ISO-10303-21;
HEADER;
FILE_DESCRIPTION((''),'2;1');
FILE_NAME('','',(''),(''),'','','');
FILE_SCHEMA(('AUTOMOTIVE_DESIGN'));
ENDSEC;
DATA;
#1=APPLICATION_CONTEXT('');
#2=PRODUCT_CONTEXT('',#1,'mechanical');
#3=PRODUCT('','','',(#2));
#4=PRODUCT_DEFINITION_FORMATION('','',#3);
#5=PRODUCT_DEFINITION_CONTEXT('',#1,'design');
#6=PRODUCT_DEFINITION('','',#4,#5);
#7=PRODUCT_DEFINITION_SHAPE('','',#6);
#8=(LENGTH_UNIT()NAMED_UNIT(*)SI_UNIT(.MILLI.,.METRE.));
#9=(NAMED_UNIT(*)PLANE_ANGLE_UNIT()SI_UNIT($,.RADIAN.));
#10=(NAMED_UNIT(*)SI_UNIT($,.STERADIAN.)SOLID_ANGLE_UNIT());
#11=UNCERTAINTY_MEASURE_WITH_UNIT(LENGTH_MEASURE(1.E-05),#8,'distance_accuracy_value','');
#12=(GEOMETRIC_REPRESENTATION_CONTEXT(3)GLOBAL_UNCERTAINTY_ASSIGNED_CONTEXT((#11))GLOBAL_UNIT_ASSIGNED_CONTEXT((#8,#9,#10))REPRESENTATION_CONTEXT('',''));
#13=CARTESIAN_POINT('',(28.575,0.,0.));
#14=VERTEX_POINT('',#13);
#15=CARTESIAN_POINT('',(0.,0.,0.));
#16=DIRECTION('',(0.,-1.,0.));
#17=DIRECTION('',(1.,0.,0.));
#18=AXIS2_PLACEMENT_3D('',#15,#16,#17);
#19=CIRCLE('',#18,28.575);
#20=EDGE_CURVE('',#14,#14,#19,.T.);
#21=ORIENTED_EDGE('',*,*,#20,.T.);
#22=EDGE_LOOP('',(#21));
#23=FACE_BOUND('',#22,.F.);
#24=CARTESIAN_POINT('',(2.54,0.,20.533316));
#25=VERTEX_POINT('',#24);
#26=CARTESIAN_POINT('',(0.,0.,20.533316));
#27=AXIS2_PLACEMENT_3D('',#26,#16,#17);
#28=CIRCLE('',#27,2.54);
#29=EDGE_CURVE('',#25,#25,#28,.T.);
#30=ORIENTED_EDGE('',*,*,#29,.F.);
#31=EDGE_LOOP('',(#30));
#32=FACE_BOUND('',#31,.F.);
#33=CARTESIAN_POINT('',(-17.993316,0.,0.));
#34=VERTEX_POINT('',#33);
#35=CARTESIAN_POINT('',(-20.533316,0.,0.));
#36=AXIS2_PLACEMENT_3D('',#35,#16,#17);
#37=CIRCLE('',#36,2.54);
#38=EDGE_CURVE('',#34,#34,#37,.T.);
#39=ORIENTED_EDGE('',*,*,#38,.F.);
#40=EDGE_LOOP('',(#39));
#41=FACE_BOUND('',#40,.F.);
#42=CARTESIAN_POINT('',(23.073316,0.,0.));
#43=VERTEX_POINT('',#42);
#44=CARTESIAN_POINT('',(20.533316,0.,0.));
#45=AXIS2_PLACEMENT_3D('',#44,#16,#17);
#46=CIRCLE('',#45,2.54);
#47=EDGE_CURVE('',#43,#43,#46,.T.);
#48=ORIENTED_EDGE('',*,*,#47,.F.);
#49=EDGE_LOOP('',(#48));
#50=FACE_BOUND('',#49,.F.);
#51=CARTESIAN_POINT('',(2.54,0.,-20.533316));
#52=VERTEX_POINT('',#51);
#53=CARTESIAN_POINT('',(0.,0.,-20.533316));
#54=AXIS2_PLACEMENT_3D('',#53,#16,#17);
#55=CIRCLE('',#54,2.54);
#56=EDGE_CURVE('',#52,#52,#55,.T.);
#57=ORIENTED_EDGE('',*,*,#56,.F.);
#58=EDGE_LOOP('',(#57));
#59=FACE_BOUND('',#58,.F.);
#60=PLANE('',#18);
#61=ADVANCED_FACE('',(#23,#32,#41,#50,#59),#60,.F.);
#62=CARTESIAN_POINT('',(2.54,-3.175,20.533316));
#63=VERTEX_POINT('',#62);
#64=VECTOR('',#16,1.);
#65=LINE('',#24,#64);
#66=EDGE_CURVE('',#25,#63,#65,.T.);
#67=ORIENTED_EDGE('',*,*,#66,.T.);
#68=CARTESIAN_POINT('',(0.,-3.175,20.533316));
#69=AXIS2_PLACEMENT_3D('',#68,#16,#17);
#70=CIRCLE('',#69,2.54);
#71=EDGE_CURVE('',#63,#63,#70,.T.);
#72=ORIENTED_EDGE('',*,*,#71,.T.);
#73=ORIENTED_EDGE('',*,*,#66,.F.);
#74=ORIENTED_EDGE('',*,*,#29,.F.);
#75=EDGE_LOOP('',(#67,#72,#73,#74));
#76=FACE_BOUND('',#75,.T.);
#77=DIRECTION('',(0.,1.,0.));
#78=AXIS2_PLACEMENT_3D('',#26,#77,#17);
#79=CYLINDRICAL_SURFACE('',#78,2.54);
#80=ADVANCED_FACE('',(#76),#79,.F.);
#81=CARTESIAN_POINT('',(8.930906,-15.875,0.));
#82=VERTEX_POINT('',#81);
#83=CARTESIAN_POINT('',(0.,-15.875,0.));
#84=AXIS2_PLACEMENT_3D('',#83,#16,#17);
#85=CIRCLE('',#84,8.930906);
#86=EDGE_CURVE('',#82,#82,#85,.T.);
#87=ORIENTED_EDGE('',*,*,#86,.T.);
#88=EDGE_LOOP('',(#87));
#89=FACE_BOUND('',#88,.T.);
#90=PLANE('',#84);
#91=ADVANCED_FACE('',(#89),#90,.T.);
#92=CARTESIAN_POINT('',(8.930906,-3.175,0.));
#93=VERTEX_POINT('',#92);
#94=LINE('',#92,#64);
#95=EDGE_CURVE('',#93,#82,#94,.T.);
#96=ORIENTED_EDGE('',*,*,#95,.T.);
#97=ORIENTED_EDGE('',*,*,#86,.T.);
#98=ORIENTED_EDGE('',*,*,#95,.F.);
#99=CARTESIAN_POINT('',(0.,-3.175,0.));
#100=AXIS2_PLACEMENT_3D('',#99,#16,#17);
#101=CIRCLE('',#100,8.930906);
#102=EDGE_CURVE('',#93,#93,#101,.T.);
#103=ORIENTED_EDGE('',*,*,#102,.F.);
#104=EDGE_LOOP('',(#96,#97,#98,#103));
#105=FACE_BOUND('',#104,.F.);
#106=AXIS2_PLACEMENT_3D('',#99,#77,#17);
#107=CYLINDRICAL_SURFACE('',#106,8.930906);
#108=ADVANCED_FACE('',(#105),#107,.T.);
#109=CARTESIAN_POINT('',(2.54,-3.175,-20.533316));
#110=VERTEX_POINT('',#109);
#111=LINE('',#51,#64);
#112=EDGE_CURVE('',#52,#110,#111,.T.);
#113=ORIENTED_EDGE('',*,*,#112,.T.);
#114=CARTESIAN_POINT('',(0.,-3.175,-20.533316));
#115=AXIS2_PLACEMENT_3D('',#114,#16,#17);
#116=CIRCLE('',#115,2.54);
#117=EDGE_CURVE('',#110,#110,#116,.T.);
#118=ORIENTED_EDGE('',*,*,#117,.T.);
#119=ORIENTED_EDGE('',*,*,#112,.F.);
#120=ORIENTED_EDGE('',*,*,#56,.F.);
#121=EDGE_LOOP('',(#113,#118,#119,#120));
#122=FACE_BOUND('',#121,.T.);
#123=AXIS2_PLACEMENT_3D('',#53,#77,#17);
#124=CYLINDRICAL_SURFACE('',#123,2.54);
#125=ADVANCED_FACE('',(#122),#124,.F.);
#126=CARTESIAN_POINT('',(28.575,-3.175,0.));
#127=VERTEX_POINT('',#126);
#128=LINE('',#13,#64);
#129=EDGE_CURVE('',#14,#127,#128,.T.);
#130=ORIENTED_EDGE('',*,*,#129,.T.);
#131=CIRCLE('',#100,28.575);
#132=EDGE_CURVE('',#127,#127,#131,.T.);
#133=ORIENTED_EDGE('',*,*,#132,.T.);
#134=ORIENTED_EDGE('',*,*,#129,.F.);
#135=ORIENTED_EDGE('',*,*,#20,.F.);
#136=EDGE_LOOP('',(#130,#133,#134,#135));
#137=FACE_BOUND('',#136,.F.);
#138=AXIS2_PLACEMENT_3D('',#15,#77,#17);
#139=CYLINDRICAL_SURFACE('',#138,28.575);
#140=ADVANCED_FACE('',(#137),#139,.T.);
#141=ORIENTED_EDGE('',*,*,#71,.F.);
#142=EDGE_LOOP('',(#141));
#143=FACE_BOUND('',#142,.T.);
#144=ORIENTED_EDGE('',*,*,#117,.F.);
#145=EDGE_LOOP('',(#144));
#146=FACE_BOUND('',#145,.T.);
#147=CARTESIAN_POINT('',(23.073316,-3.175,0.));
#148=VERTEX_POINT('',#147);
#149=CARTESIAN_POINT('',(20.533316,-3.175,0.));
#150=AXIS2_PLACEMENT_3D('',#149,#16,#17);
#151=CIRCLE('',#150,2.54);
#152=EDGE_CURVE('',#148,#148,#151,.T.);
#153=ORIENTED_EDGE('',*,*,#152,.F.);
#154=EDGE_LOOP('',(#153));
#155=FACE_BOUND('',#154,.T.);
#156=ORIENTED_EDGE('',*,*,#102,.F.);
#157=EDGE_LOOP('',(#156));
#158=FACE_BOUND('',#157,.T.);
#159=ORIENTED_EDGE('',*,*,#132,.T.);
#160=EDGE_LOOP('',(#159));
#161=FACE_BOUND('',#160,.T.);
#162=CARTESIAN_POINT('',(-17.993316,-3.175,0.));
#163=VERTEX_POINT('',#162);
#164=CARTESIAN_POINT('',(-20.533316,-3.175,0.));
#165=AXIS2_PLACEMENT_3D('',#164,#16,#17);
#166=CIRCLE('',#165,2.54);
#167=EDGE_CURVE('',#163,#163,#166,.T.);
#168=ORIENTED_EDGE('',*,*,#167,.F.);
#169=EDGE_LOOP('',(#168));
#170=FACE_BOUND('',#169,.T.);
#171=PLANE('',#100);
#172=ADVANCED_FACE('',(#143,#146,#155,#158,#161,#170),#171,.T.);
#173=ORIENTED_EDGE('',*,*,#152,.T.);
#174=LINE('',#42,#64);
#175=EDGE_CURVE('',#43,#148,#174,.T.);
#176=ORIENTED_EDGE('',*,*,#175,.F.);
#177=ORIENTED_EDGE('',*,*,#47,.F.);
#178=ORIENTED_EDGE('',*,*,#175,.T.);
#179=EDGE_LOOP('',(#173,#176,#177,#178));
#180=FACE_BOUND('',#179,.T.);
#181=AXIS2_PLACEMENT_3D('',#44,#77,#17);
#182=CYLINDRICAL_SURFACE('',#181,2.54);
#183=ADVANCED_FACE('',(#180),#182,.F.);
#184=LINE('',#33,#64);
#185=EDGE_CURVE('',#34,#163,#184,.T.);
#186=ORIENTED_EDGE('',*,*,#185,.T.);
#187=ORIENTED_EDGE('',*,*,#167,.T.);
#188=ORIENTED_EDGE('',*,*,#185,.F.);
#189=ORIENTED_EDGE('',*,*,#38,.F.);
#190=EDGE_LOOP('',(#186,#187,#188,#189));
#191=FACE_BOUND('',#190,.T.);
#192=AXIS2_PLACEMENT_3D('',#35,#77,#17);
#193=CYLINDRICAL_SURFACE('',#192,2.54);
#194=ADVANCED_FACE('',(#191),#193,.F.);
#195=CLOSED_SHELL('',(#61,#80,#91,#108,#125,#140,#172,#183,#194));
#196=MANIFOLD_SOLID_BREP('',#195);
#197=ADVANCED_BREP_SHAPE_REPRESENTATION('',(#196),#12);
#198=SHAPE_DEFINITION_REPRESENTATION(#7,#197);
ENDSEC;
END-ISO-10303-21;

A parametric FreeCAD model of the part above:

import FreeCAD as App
import Part
import Sketcher
Q = App.Units.Quantity

doc = App.newDocument("Part")
body = doc.addObject("PartDesign::Body", "Body")

sketch1 = body.newObject("Sketcher::SketchObject", "Sketch")
sketch1.AttachmentSupport = (doc.getObject("XZ_Plane"), [""])
sketch1.MapMode = "FlatFace"
sketch1.addGeometry([
    Part.Circle(App.Vector(0, 0, 0), App.Vector(0, 0, 1), 28.6),
    Part.Circle(App.Vector(0, -20.5, 0), App.Vector(0, 0, 1), 2.5),
    Part.Circle(App.Vector(-20.5, 0, 0), App.Vector(0, 0, 1), 2.5),
    Part.Circle(App.Vector(20.5, 0, 0), App.Vector(0, 0, 1), 2.5),
    Part.Circle(App.Vector(0, 20.5, 0), App.Vector(0, 0, 1), 2.5),
], False)
sketch1.addConstraint([
    Sketcher.Constraint("Coincident", 0, 3, -1, 1),
    Sketcher.Constraint("Equal", 1, 2),
    Sketcher.Constraint("Equal", 2, 3),
    Sketcher.Constraint("Equal", 3, 4),
    Sketcher.Constraint("Symmetric", 2, 3, 3, 3, -1, 1),
    Sketcher.Constraint("Symmetric", 1, 3, 4, 3, -1, 1),
    Sketcher.Constraint("PointOnObject", 1, 3, -2),
    Sketcher.Constraint("PointOnObject", 2, 3, -1),
    Sketcher.Constraint("Diameter", 1, Q("0.2 in")),
    Sketcher.Constraint("Diameter", 0, Q("2.25 in")),
    Sketcher.Constraint("DistanceX", 2, 3, 3, 3, Q("41.066632 mm")),
    Sketcher.Constraint("DistanceY", 1, 3, 4, 3, Q("41.066632 mm")),
])
pad1 = body.newObject("PartDesign::Pad", "Pad")
pad1.Profile = sketch1
pad1.Length = Q("0.125 in")

sketch2 = body.newObject("Sketcher::SketchObject", "Sketch001")
sketch2.AttachmentSupport = (doc.getObject("XZ_Plane"), [""])
sketch2.MapMode = "FlatFace"
sketch2.AttachmentOffset = App.Placement(App.Vector(0, 0, 0.125 * 25.4), App.Rotation())
sketch2.addGeometry(Part.Circle(App.Vector(0, 0, 0), App.Vector(0, 0, 1), 9), False)
sketch2.addConstraint([
    Sketcher.Constraint("Coincident", 0, 3, -1, 1),
    Sketcher.Constraint("Diameter", 0, Q("17.861812 mm")),
])
pad2 = body.newObject("PartDesign::Pad", "Pad001")
pad2.Profile = sketch2
pad2.Length = Q("0.5 in")

doc.recompute()
